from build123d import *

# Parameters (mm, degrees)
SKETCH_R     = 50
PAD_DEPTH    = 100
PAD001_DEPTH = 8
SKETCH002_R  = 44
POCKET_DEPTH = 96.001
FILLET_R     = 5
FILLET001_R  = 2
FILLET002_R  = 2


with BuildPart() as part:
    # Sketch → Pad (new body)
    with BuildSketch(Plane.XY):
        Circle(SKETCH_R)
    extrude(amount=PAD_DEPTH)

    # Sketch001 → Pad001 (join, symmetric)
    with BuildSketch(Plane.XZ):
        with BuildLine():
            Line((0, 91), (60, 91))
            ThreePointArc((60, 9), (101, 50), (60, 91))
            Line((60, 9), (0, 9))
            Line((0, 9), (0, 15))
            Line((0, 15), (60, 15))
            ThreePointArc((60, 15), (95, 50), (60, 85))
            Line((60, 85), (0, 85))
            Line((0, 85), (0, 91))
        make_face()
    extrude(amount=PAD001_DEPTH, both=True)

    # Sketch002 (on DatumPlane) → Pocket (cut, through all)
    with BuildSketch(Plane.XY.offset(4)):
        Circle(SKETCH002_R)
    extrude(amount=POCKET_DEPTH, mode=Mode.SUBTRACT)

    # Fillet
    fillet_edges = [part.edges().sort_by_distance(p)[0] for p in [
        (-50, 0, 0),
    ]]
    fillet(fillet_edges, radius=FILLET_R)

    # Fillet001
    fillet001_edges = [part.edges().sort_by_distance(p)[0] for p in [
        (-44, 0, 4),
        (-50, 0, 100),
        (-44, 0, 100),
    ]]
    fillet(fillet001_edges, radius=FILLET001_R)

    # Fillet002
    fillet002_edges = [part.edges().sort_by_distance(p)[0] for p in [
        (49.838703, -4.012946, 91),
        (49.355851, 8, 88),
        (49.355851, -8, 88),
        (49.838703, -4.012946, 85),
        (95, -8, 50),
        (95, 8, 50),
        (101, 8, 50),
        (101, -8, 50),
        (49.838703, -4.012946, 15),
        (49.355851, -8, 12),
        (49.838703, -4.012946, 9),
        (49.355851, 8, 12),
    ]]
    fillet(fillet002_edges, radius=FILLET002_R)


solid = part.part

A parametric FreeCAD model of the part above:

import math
import FreeCAD as App
import Part
import Sketcher
from FreeCAD import Vector
Q = App.Units.Quantity


def edges_at(feature, points):
    """Names of the edges that pass closest to the given points."""
    edges = feature.Shape.Edges
    near = lambda p: min(range(len(edges)), key=lambda i: edges[i].distToShape(Part.Vertex(*p))[0])
    return sorted({f"Edge{near(p) + 1}" for p in points})

doc = App.newDocument("Part")
params = doc.addObject("Spreadsheet::Sheet", "Params")
for row, (alias, value) in enumerate([
    ("sketch1_diameter", "100 mm"),
    ("pad1_length", "100 mm"),
    ("sketch2_radius", "35 mm"),
    ("sketch2_radius2", "41 mm"),
    ("sketch2_width", "60 mm"),
    ("pad2_length", "16 mm"),
    ("sketch3_diameter", "88 mm"),
    ("fillet_radius", "5 mm"),
    ("fillet2_radius", "2 mm"),
    ("fillet3_radius", "2 mm"),
], start=1):
    params.set(f"A{row}", alias)
    params.set(f"B{row}", "=" + value)
    params.setAlias(f"B{row}", alias)

body = doc.addObject("PartDesign::Body", "Body")

# Sketch on XY plane
sketch1 = body.newObject("Sketcher::SketchObject", "Sketch")
sketch1.AttachmentSupport = (doc.getObject("XY_Plane"), [""])
sketch1.MapMode = "FlatFace"
sketch1.addGeometry(Part.Circle(Vector(0, 0, 0), Vector(0, 0, 1), 50), False)
sketch1.addConstraint(Sketcher.Constraint("Coincident", 0, 3, -1, 1))
sketch1.addConstraint(Sketcher.Constraint("Diameter", 0, Q("100 mm")))
sketch1.setExpression("Constraints[1]", "Params.sketch1_diameter")
pad1 = body.newObject("PartDesign::Pad", "Pad")
pad1.Profile = sketch1
pad1.setExpression("Length", "Params.pad1_length")

# Sketch on XZ plane
sketch2 = body.newObject("Sketcher::SketchObject", "Sketch001")
sketch2.AttachmentSupport = (doc.getObject("XZ_Plane"), [""])
sketch2.MapMode = "FlatFace"
sketch2.addGeometry(Part.LineSegment(Vector(60, 91, 0), Vector(0, 91, 0)), False)
sketch2.addGeometry(Part.LineSegment(Vector(0, 91, 0), Vector(0, 85, 0)), False)
sketch2.addGeometry(Part.LineSegment(Vector(0, 85, 0), Vector(60, 85, 0)), False)
sketch2.addGeometry(Part.ArcOfCircle(Part.Circle(Vector(60, 50, 0), Vector(0, 0, 1), 35), math.radians(-90), math.radians(90)), False)
sketch2.addGeometry(Part.LineSegment(Vector(60, 15, 0), Vector(0, 15, 0)), False)
sketch2.addGeometry(Part.LineSegment(Vector(0, 15, 0), Vector(0, 9, 0)), False)
sketch2.addGeometry(Part.LineSegment(Vector(0, 9, 0), Vector(60, 9, 0)), False)
sketch2.addGeometry(Part.ArcOfCircle(Part.Circle(Vector(60, 50, 0), Vector(0, 0, 1), 41), math.radians(-90), math.radians(90)), False)
sketch2.addConstraint(Sketcher.Constraint("Coincident", 0, 2, 1, 1))
sketch2.addConstraint(Sketcher.Constraint("Coincident", 1, 2, 2, 1))
sketch2.addConstraint(Sketcher.Constraint("Tangent", 2, 2, 3, 2))
sketch2.addConstraint(Sketcher.Constraint("Tangent", 3, 1, 4, 1))
sketch2.addConstraint(Sketcher.Constraint("Coincident", 4, 2, 5, 1))
sketch2.addConstraint(Sketcher.Constraint("Coincident", 5, 2, 6, 1))
sketch2.addConstraint(Sketcher.Constraint("Tangent", 6, 2, 7, 1))
sketch2.addConstraint(Sketcher.Constraint("Tangent", 7, 2, 0, 1))
sketch2.addConstraint(Sketcher.Constraint("Horizontal", 0))
sketch2.addConstraint(Sketcher.Constraint("Vertical", 1))
sketch2.addConstraint(Sketcher.Constraint("Horizontal", 2))
sketch2.addConstraint(Sketcher.Constraint("Horizontal", 4))
sketch2.addConstraint(Sketcher.Constraint("Vertical", 5))
sketch2.addConstraint(Sketcher.Constraint("Horizontal", 6))
sketch2.addConstraint(Sketcher.Constraint("Coincident", 7, 3, 3, 3))
sketch2.addConstraint(Sketcher.Constraint("PointOnObject", 0, 2, -2))
sketch2.addConstraint(Sketcher.Constraint("PointOnObject", 4, 2, -2))
sketch2.addConstraint(Sketcher.Constraint("Radius", 3, Q("35 mm")))
sketch2.addConstraint(Sketcher.Constraint("Radius", 7, Q("41 mm")))
sketch2.addConstraint(Sketcher.Constraint("DistanceX", 0, 2, 0, 1, Q("60 mm")))
sketch2.addConstraint(Sketcher.Constraint("DistanceY", -1, 1, 3, 3, Q("50 mm")))
sketch2.setExpression("Constraints[17]", "Params.sketch2_radius")
sketch2.setExpression("Constraints[18]", "Params.sketch2_radius2")
sketch2.setExpression("Constraints[19]", "Params.sketch2_width")
pad2 = body.newObject("PartDesign::Pad", "Pad001")
pad2.Profile = sketch2
pad2.setExpression("Length", "Params.pad2_length")
pad2.Midplane = True

# Sketch on XY plane
sketch3 = body.newObject("Sketcher::SketchObject", "Sketch002")
sketch3.AttachmentSupport = (doc.getObject("XY_Plane"), [""])
sketch3.MapMode = "FlatFace"
sketch3.AttachmentOffset = App.Placement(Vector(0, 0, 4), App.Rotation())
sketch3.addGeometry(Part.Circle(Vector(0, 0, 0), Vector(0, 0, 1), 44), False)
sketch3.addConstraint(Sketcher.Constraint("Coincident", 0, 3, -1, 1))
sketch3.addConstraint(Sketcher.Constraint("Diameter", 0, Q("88 mm")))
sketch3.setExpression("Constraints[1]", "Params.sketch3_diameter")
pocket1 = body.newObject("PartDesign::Pocket", "Pocket")
pocket1.Profile = sketch3
pocket1.Type = "ThroughAll"
pocket1.Reversed = True
doc.recompute()

fillet = body.newObject("PartDesign::Fillet", "Fillet")
fillet.Base = (pocket1, edges_at(pocket1, [(-50, 0, 0)]))
fillet.setExpression("Radius", "Params.fillet_radius")
doc.recompute()

fillet2 = body.newObject("PartDesign::Fillet", "Fillet001")
fillet2.Base = (fillet, edges_at(fillet, [(-44, 0, 4), (-50, 0, 100), (-44, 0, 100)]))
fillet2.setExpression("Radius", "Params.fillet2_radius")
doc.recompute()

fillet3 = body.newObject("PartDesign::Fillet", "Fillet002")
fillet3.Base = (fillet2, edges_at(fillet2, [
    (49.839, -4.013, 91),
    (49.356, 8, 88),
    (49.356, -8, 88),
    (49.839, -4.013, 85),
    (95, -8, 50),
    (95, 8, 50),
    (101, 8, 50),
    (101, -8, 50),
    (49.839, -4.013, 15),
    (49.356, -8, 12),
    (49.839, -4.013, 9),
    (49.356, 8, 12),
]))
fillet3.setExpression("Radius", "Params.fillet3_radius")

doc.recompute()
